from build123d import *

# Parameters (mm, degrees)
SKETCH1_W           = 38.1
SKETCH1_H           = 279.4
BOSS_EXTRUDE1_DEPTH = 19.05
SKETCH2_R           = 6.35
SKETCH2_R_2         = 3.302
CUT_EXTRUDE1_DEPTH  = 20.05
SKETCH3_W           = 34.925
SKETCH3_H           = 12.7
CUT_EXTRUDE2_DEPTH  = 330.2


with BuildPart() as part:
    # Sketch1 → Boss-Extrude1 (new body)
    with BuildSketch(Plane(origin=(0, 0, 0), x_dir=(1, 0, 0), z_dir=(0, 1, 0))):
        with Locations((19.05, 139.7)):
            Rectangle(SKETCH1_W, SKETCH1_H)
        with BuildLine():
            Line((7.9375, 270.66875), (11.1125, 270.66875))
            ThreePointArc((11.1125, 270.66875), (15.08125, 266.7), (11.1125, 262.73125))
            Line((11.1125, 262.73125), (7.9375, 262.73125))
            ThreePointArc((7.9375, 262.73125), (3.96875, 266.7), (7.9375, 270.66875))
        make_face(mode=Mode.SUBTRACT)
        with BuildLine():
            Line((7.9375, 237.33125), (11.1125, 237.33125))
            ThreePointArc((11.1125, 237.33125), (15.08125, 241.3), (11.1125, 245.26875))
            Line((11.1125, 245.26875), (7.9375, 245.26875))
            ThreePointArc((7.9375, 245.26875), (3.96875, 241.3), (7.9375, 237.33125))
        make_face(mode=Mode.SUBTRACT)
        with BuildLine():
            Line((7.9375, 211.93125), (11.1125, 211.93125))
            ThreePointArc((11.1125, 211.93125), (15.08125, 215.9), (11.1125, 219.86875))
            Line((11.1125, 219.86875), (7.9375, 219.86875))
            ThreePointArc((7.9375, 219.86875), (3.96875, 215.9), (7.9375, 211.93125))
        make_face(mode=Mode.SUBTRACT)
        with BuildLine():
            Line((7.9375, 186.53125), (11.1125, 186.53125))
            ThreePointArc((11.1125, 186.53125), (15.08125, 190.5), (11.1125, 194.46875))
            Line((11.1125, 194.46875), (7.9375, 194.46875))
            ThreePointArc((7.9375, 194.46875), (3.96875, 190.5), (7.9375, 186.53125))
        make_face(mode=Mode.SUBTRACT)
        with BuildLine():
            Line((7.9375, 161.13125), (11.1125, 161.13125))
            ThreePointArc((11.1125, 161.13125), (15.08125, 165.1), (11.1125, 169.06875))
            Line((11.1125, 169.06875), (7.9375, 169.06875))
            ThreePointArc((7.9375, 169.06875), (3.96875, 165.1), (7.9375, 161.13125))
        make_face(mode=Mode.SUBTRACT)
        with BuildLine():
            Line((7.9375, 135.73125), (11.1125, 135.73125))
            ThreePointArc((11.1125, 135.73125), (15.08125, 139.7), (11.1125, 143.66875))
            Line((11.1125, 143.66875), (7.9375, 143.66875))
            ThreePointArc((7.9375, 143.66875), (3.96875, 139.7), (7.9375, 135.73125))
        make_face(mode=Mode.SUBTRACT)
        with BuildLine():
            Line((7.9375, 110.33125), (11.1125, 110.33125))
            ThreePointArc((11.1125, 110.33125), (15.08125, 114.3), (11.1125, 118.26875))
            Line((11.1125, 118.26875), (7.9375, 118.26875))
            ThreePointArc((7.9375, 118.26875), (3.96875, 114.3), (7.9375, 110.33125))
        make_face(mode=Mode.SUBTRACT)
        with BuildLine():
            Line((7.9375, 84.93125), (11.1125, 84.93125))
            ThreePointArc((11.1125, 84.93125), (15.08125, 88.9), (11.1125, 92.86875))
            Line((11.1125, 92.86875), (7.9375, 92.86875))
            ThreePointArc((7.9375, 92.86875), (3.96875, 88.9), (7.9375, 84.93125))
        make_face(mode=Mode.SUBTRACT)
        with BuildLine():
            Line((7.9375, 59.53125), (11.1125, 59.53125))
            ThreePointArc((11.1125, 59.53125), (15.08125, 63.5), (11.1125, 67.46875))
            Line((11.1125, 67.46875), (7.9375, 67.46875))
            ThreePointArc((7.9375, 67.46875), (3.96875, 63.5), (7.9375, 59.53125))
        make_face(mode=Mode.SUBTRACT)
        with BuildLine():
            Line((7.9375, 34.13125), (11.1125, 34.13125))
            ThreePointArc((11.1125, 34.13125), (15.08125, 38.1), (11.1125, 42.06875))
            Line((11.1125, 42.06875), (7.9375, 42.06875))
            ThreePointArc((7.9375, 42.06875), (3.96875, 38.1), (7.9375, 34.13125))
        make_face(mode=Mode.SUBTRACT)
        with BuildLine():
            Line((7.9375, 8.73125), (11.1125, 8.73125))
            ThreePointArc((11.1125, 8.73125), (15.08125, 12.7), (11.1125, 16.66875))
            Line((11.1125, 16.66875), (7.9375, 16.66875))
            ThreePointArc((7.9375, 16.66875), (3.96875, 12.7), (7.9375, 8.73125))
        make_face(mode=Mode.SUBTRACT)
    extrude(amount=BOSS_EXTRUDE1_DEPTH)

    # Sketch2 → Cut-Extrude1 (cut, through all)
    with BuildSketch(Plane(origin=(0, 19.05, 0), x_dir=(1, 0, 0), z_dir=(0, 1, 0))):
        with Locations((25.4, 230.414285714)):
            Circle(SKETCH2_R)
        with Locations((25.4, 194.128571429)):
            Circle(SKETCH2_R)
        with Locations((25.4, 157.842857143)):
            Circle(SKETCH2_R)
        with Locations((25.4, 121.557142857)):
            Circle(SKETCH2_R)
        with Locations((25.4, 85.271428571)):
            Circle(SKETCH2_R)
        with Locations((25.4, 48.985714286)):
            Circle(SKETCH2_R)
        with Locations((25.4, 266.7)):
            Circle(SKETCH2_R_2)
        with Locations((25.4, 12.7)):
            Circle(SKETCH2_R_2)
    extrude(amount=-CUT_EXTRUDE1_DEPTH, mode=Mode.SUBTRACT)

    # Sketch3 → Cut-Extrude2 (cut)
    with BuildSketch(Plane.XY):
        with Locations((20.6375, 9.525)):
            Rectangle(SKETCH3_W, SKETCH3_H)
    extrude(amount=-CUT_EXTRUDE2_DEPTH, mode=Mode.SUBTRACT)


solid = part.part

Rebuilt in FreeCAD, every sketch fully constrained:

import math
import FreeCAD as App
import Part
import Sketcher
Q = App.Units.Quantity

doc = App.newDocument("Part")
body = doc.addObject("PartDesign::Body", "Body")

sketch1 = body.newObject("Sketcher::SketchObject", "Sketch")
sketch1.AttachmentSupport = (doc.getObject("XZ_Plane"), [""])
sketch1.MapMode = "FlatFace"
sketch1.addGeometry(Part.LineSegment(App.Vector(0, -279.4, 0), App.Vector(0, 0, 0)), False)
sketch1.addGeometry(Part.LineSegment(App.Vector(0, 0, 0), App.Vector(38.1, 0, 0)), False)
sketch1.addGeometry(Part.LineSegment(App.Vector(38.1, 0, 0), App.Vector(38.1, -279.4, 0)), False)
sketch1.addGeometry(Part.LineSegment(App.Vector(38.1, -279.4, 0), App.Vector(0, -279.4, 0)), False)
sketch1.addGeometry(Part.LineSegment(App.Vector(11.1125, -34.13125, 0), App.Vector(7.9375, -34.13125, 0)), False)
sketch1.addGeometry(Part.ArcOfCircle(Part.Circle(App.Vector(7.9375, -38.1, 0), App.Vector(0, 0, 1), 3.96875), math.radians(90), math.radians(270)), False)
sketch1.addGeometry(Part.LineSegment(App.Vector(7.9375, -42.06875, 0), App.Vector(11.1125, -42.06875, 0)), False)
sketch1.addGeometry(Part.ArcOfCircle(Part.Circle(App.Vector(11.1125, -38.1, 0), App.Vector(0, 0, 1), 3.96875), math.radians(-90), math.radians(90)), False)
sketch1.addGeometry(Part.LineSegment(App.Vector(11.1125, -59.53125, 0), App.Vector(7.9375, -59.53125, 0)), False)
sketch1.addGeometry(Part.ArcOfCircle(Part.Circle(App.Vector(7.9375, -63.5, 0), App.Vector(0, 0, 1), 3.96875), math.radians(90), math.radians(270)), False)
sketch1.addGeometry(Part.LineSegment(App.Vector(7.9375, -67.46875, 0), App.Vector(11.1125, -67.46875, 0)), False)
sketch1.addGeometry(Part.ArcOfCircle(Part.Circle(App.Vector(11.1125, -63.5, 0), App.Vector(0, 0, 1), 3.96875), math.radians(-90), math.radians(90)), False)
sketch1.addGeometry(Part.LineSegment(App.Vector(11.1125, -84.93125, 0), App.Vector(7.9375, -84.93125, 0)), False)
sketch1.addGeometry(Part.ArcOfCircle(Part.Circle(App.Vector(7.9375, -88.9, 0), App.Vector(0, 0, 1), 3.96875), math.radians(90), math.radians(270)), False)
sketch1.addGeometry(Part.LineSegment(App.Vector(7.9375, -92.86875, 0), App.Vector(11.1125, -92.86875, 0)), False)
sketch1.addGeometry(Part.ArcOfCircle(Part.Circle(App.Vector(11.1125, -88.9, 0), App.Vector(0, 0, 1), 3.96875), math.radians(-90), math.radians(90)), False)
sketch1.addGeometry(Part.LineSegment(App.Vector(11.1125, -110.33125, 0), App.Vector(7.9375, -110.33125, 0)), False)
sketch1.addGeometry(Part.ArcOfCircle(Part.Circle(App.Vector(7.9375, -114.3, 0), App.Vector(0, 0, 1), 3.96875), math.radians(90), math.radians(270)), False)
sketch1.addGeometry(Part.LineSegment(App.Vector(7.9375, -118.26875, 0), App.Vector(11.1125, -118.26875, 0)), False)
sketch1.addGeometry(Part.ArcOfCircle(Part.Circle(App.Vector(11.1125, -114.3, 0), App.Vector(0, 0, 1), 3.96875), math.radians(-90), math.radians(90)), False)
sketch1.addGeometry(Part.LineSegment(App.Vector(11.1125, -8.73125, 0), App.Vector(7.9375, -8.73125, 0)), False)
sketch1.addGeometry(Part.ArcOfCircle(Part.Circle(App.Vector(7.9375, -12.7, 0), App.Vector(0, 0, 1), 3.96875), math.radians(90), math.radians(270)), False)
sketch1.addGeometry(Part.LineSegment(App.Vector(7.9375, -16.66875, 0), App.Vector(11.1125, -16.66875, 0)), False)
sketch1.addGeometry(Part.ArcOfCircle(Part.Circle(App.Vector(11.1125, -12.7, 0), App.Vector(0, 0, 1), 3.96875), math.radians(-90), math.radians(90)), False)
sketch1.addGeometry(Part.LineSegment(App.Vector(11.1125, -135.73125, 0), App.Vector(7.9375, -135.73125, 0)), False)
sketch1.addGeometry(Part.ArcOfCircle(Part.Circle(App.Vector(7.9375, -139.7, 0), App.Vector(0, 0, 1), 3.96875), math.radians(90), math.radians(270)), False)
sketch1.addGeometry(Part.LineSegment(App.Vector(7.9375, -143.66875, 0), App.Vector(11.1125, -143.66875, 0)), False)
sketch1.addGeometry(Part.ArcOfCircle(Part.Circle(App.Vector(11.1125, -139.7, 0), App.Vector(0, 0, 1), 3.96875), math.radians(-90), math.radians(90)), False)
sketch1.addGeometry(Part.LineSegment(App.Vector(11.1125, -161.13125, 0), App.Vector(7.9375, -161.13125, 0)), False)
sketch1.addGeometry(Part.ArcOfCircle(Part.Circle(App.Vector(7.9375, -165.1, 0), App.Vector(0, 0, 1), 3.96875), math.radians(90), math.radians(270)), False)
sketch1.addGeometry(Part.LineSegment(App.Vector(7.9375, -169.06875, 0), App.Vector(11.1125, -169.06875, 0)), False)
sketch1.addGeometry(Part.ArcOfCircle(Part.Circle(App.Vector(11.1125, -165.1, 0), App.Vector(0, 0, 1), 3.96875), math.radians(-90), math.radians(90)), False)
sketch1.addGeometry(Part.LineSegment(App.Vector(11.1125, -186.53125, 0), App.Vector(7.9375, -186.53125, 0)), False)
sketch1.addGeometry(Part.ArcOfCircle(Part.Circle(App.Vector(7.9375, -190.5, 0), App.Vector(0, 0, 1), 3.96875), math.radians(90), math.radians(270)), False)
sketch1.addGeometry(Part.LineSegment(App.Vector(7.9375, -194.46875, 0), App.Vector(11.1125, -194.46875, 0)), False)
sketch1.addGeometry(Part.ArcOfCircle(Part.Circle(App.Vector(11.1125, -190.5, 0), App.Vector(0, 0, 1), 3.96875), math.radians(-90), math.radians(90)), False)
sketch1.addGeometry(Part.LineSegment(App.Vector(11.1125, -211.93125, 0), App.Vector(7.9375, -211.93125, 0)), False)
sketch1.addGeometry(Part.ArcOfCircle(Part.Circle(App.Vector(7.9375, -215.9, 0), App.Vector(0, 0, 1), 3.96875), math.radians(90), math.radians(270)), False)
sketch1.addGeometry(Part.LineSegment(App.Vector(7.9375, -219.86875, 0), App.Vector(11.1125, -219.86875, 0)), False)
sketch1.addGeometry(Part.ArcOfCircle(Part.Circle(App.Vector(11.1125, -215.9, 0), App.Vector(0, 0, 1), 3.96875), math.radians(-90), math.radians(90)), False)
sketch1.addGeometry(Part.LineSegment(App.Vector(11.1125, -237.33125, 0), App.Vector(7.9375, -237.33125, 0)), False)
sketch1.addGeometry(Part.ArcOfCircle(Part.Circle(App.Vector(7.9375, -241.3, 0), App.Vector(0, 0, 1), 3.96875), math.radians(90), math.radians(270)), False)
sketch1.addGeometry(Part.LineSegment(App.Vector(7.9375, -245.26875, 0), App.Vector(11.1125, -245.26875, 0)), False)
sketch1.addGeometry(Part.ArcOfCircle(Part.Circle(App.Vector(11.1125, -241.3, 0), App.Vector(0, 0, 1), 3.96875), math.radians(-90), math.radians(90)), False)
sketch1.addGeometry(Part.ArcOfCircle(Part.Circle(App.Vector(7.9375, -266.7, 0), App.Vector(0, 0, 1), 3.96875), math.radians(90), math.radians(270)), False)
sketch1.addGeometry(Part.LineSegment(App.Vector(7.9375, -270.66875, 0), App.Vector(11.1125, -270.66875, 0)), False)
sketch1.addGeometry(Part.ArcOfCircle(Part.Circle(App.Vector(11.1125, -266.7, 0), App.Vector(0, 0, 1), 3.96875), math.radians(-90), math.radians(90)), False)
sketch1.addGeometry(Part.LineSegment(App.Vector(11.1125, -262.73125, 0), App.Vector(7.9375, -262.73125, 0)), False)
sketch1.addConstraint(Sketcher.Constraint("Coincident", 0, 2, 1, 1))
sketch1.addConstraint(Sketcher.Constraint("Coincident", 1, 2, 2, 1))
sketch1.addConstraint(Sketcher.Constraint("Coincident", 2, 2, 3, 1))
sketch1.addConstraint(Sketcher.Constraint("Coincident", 3, 2, 0, 1))
sketch1.addConstraint(Sketcher.Constraint("Tangent", 4, 2, 5, 1))
sketch1.addConstraint(Sketcher.Constraint("Tangent", 5, 2, 6, 1))
sketch1.addConstraint(Sketcher.Constraint("Tangent", 6, 2, 7, 1))
sketch1.addConstraint(Sketcher.Constraint("Tangent", 7, 2, 4, 1))
sketch1.addConstraint(Sketcher.Constraint("Tangent", 8, 2, 9, 1))
sketch1.addConstraint(Sketcher.Constraint("Tangent", 9, 2, 10, 1))
sketch1.addConstraint(Sketcher.Constraint("Tangent", 10, 2, 11, 1))
sketch1.addConstraint(Sketcher.Constraint("Tangent", 11, 2, 8, 1))
sketch1.addConstraint(Sketcher.Constraint("Tangent", 12, 2, 13, 1))
sketch1.addConstraint(Sketcher.Constraint("Tangent", 13, 2, 14, 1))
sketch1.addConstraint(Sketcher.Constraint("Tangent", 14, 2, 15, 1))
sketch1.addConstraint(Sketcher.Constraint("Tangent", 15, 2, 12, 1))
sketch1.addConstraint(Sketcher.Constraint("Tangent", 16, 2, 17, 1))
sketch1.addConstraint(Sketcher.Constraint("Tangent", 17, 2, 18, 1))
sketch1.addConstraint(Sketcher.Constraint("Tangent", 18, 2, 19, 1))
sketch1.addConstraint(Sketcher.Constraint("Tangent", 19, 2, 16, 1))
sketch1.addConstraint(Sketcher.Constraint("Tangent", 20, 2, 21, 1))
sketch1.addConstraint(Sketcher.Constraint("Tangent", 21, 2, 22, 1))
sketch1.addConstraint(Sketcher.Constraint("Tangent", 22, 2, 23, 1))
sketch1.addConstraint(Sketcher.Constraint("Tangent", 23, 2, 20, 1))
sketch1.addConstraint(Sketcher.Constraint("Tangent", 24, 2, 25, 1))
sketch1.addConstraint(Sketcher.Constraint("Tangent", 25, 2, 26, 1))
sketch1.addConstraint(Sketcher.Constraint("Tangent", 26, 2, 27, 1))
sketch1.addConstraint(Sketcher.Constraint("Tangent", 27, 2, 24, 1))
sketch1.addConstraint(Sketcher.Constraint("Tangent", 28, 2, 29, 1))
sketch1.addConstraint(Sketcher.Constraint("Tangent", 29, 2, 30, 1))
sketch1.addConstraint(Sketcher.Constraint("Tangent", 30, 2, 31, 1))
sketch1.addConstraint(Sketcher.Constraint("Tangent", 31, 2, 28, 1))
sketch1.addConstraint(Sketcher.Constraint("Tangent", 32, 2, 33, 1))
sketch1.addConstraint(Sketcher.Constraint("Tangent", 33, 2, 34, 1))
sketch1.addConstraint(Sketcher.Constraint("Tangent", 34, 2, 35, 1))
sketch1.addConstraint(Sketcher.Constraint("Tangent", 35, 2, 32, 1))
sketch1.addConstraint(Sketcher.Constraint("Tangent", 36, 2, 37, 1))
sketch1.addConstraint(Sketcher.Constraint("Tangent", 37, 2, 38, 1))
sketch1.addConstraint(Sketcher.Constraint("Tangent", 38, 2, 39, 1))
sketch1.addConstraint(Sketcher.Constraint("Tangent", 39, 2, 36, 1))
sketch1.addConstraint(Sketcher.Constraint("Tangent", 40, 2, 41, 1))
sketch1.addConstraint(Sketcher.Constraint("Tangent", 41, 2, 42, 1))
sketch1.addConstraint(Sketcher.Constraint("Tangent", 42, 2, 43, 1))
sketch1.addConstraint(Sketcher.Constraint("Tangent", 43, 2, 40, 1))
sketch1.addConstraint(Sketcher.Constraint("Tangent", 44, 2, 45, 1))
sketch1.addConstraint(Sketcher.Constraint("Tangent", 45, 2, 46, 1))
sketch1.addConstraint(Sketcher.Constraint("Tangent", 46, 2, 47, 1))
sketch1.addConstraint(Sketcher.Constraint("Tangent", 47, 2, 44, 1))
sketch1.addConstraint(Sketcher.Constraint("Vertical", 0))
sketch1.addConstraint(Sketcher.Constraint("Horizontal", 1))
sketch1.addConstraint(Sketcher.Constraint("Vertical", 2))
sketch1.addConstraint(Sketcher.Constraint("Horizontal", 3))
sketch1.addConstraint(Sketcher.Constraint("Horizontal", 4))
sketch1.addConstraint(Sketcher.Constraint("Horizontal", 6))
sketch1.addConstraint(Sketcher.Constraint("Horizontal", 8))
sketch1.addConstraint(Sketcher.Constraint("Horizontal", 10))
sketch1.addConstraint(Sketcher.Constraint("Horizontal", 12))
sketch1.addConstraint(Sketcher.Constraint("Horizontal", 14))
sketch1.addConstraint(Sketcher.Constraint("Horizontal", 16))
sketch1.addConstraint(Sketcher.Constraint("Horizontal", 18))
sketch1.addConstraint(Sketcher.Constraint("Horizontal", 20))
sketch1.addConstraint(Sketcher.Constraint("Horizontal", 22))
sketch1.addConstraint(Sketcher.Constraint("Horizontal", 24))
sketch1.addConstraint(Sketcher.Constraint("Horizontal", 26))
sketch1.addConstraint(Sketcher.Constraint("Horizontal", 28))
sketch1.addConstraint(Sketcher.Constraint("Horizontal", 30))
sketch1.addConstraint(Sketcher.Constraint("Horizontal", 32))
sketch1.addConstraint(Sketcher.Constraint("Horizontal", 34))
sketch1.addConstraint(Sketcher.Constraint("Horizontal", 36))
sketch1.addConstraint(Sketcher.Constraint("Horizontal", 38))
sketch1.addConstraint(Sketcher.Constraint("Horizontal", 40))
sketch1.addConstraint(Sketcher.Constraint("Horizontal", 42))
sketch1.addConstraint(Sketcher.Constraint("Horizontal", 45))
sketch1.addConstraint(Sketcher.Constraint("Horizontal", 47))
sketch1.addConstraint(Sketcher.Constraint("Coincident", 0, 2, -1, 1))
sketch1.addConstraint(Sketcher.Constraint("Equal", 7, 9))
sketch1.addConstraint(Sketcher.Constraint("Equal", 11, 13))
sketch1.addConstraint(Sketcher.Constraint("Equal", 15, 17))
sketch1.addConstraint(Sketcher.Constraint("Equal", 19, 21))
sketch1.addConstraint(Sketcher.Constraint("Equal", 23, 25))
sketch1.addConstraint(Sketcher.Constraint("Equal", 27, 29))
sketch1.addConstraint(Sketcher.Constraint("Equal", 31, 33))
sketch1.addConstraint(Sketcher.Constraint("Equal", 35, 37))
sketch1.addConstraint(Sketcher.Constraint("Equal", 39, 41))
sketch1.addConstraint(Sketcher.Constraint("Equal", 43, 44))
sketch1.addConstraint(Sketcher.Constraint("Vertical", 5, 3, 9, 3))
sketch1.addConstraint(Sketcher.Constraint("Vertical", 7, 3, 11, 3))
sketch1.addConstraint(Sketcher.Constraint("Vertical", 9, 3, 13, 3))
sketch1.addConstraint(Sketcher.Constraint("Vertical", 11, 3, 15, 3))
sketch1.addConstraint(Sketcher.Constraint("Vertical", 13, 3, 17, 3))
sketch1.addConstraint(Sketcher.Constraint("Vertical", 15, 3, 19, 3))
sketch1.addConstraint(Sketcher.Constraint("Vertical", 17, 3, 21, 3))
sketch1.addConstraint(Sketcher.Constraint("Vertical", 19, 3, 23, 3))
sketch1.addConstraint(Sketcher.Constraint("Vertical", 21, 3, 25, 3))
sketch1.addConstraint(Sketcher.Constraint("Vertical", 23, 3, 27, 3))
sketch1.addConstraint(Sketcher.Constraint("Vertical", 25, 3, 29, 3))
sketch1.addConstraint(Sketcher.Constraint("Vertical", 27, 3, 31, 3))
sketch1.addConstraint(Sketcher.Constraint("Vertical", 29, 3, 33, 3))
sketch1.addConstraint(Sketcher.Constraint("Vertical", 31, 3, 35, 3))
sketch1.addConstraint(Sketcher.Constraint("Vertical", 33, 3, 37, 3))
sketch1.addConstraint(Sketcher.Constraint("Vertical", 35, 3, 39, 3))
sketch1.addConstraint(Sketcher.Constraint("Vertical", 37, 3, 41, 3))
sketch1.addConstraint(Sketcher.Constraint("Vertical", 39, 3, 43, 3))
sketch1.addConstraint(Sketcher.Constraint("Vertical", 41, 3, 44, 3))
sketch1.addConstraint(Sketcher.Constraint("Vertical", 43, 3, 46, 3))
sketch1.addConstraint(Sketcher.Constraint("DistanceY", 0, 1, 0, 2, Q("11 in")))
sketch1.addConstraint(Sketcher.Constraint("DistanceX", 1, 1, 1, 2, Q("1.5 in")))
sketch1.addConstraint(Sketcher.Constraint("Radius", 5, Q("0.15625 in")))
sketch1.addConstraint(Sketcher.Constraint("DistanceY", 5, 3, -1, 1, Q("1.5 in")))
sketch1.addConstraint(Sketcher.Constraint("DistanceY", 9, 3, -1, 1, Q("2.5 in")))
sketch1.addConstraint(Sketcher.Constraint("DistanceY", 13, 3, -1, 1, Q("3.5 in")))
sketch1.addConstraint(Sketcher.Constraint("DistanceY", 17, 3, -1, 1, Q("4.5 in")))
sketch1.addConstraint(Sketcher.Constraint("DistanceY", 21, 3, -1, 1, Q("0.5 in")))
sketch1.addConstraint(Sketcher.Constraint("DistanceY", 25, 3, -1, 1, Q("5.5 in")))
sketch1.addConstraint(Sketcher.Constraint("DistanceY", 29, 3, -1, 1, Q("6.5 in")))
sketch1.addConstraint(Sketcher.Constraint("DistanceY", 33, 3, -1, 1, Q("7.5 in")))
sketch1.addConstraint(Sketcher.Constraint("DistanceY", 37, 3, -1, 1, Q("8.5 in")))
sketch1.addConstraint(Sketcher.Constraint("DistanceY", 41, 3, -1, 1, Q("9.5 in")))
sketch1.addConstraint(Sketcher.Constraint("DistanceY", 44, 3, -1, 1, Q("10.5 in")))
sketch1.addConstraint(Sketcher.Constraint("DistanceX", 4, 2, 4, 1, Q("0.125 in")))
sketch1.addConstraint(Sketcher.Constraint("DistanceX", -1, 1, 5, 3, Q("0.3125 in")))
pad1 = body.newObject("PartDesign::Pad", "Pad")
pad1.Profile = sketch1
pad1.Length = Q("0.75 in")
pad1.Reversed = True

sketch2 = body.newObject("Sketcher::SketchObject", "Sketch001")
sketch2.AttachmentSupport = (doc.getObject("XZ_Plane"), [""])
sketch2.MapMode = "FlatFace"
sketch2.AttachmentOffset = App.Placement(App.Vector(0, 0, -0.75 * 25.4), App.Rotation())
sketch2.addGeometry(Part.Circle(App.Vector(25.4, -230.414286, 0), App.Vector(0, 0, 1), 6.35), False)
sketch2.addGeometry(Part.Circle(App.Vector(25.4, -194.128571, 0), App.Vector(0, 0, 1), 6.35), False)
sketch2.addGeometry(Part.Circle(App.Vector(25.4, -157.842857, 0), App.Vector(0, 0, 1), 6.35), False)
sketch2.addGeometry(Part.Circle(App.Vector(25.4, -121.557143, 0), App.Vector(0, 0, 1), 6.35), False)
sketch2.addGeometry(Part.Circle(App.Vector(25.4, -85.271429, 0), App.Vector(0, 0, 1), 6.35), False)
sketch2.addGeometry(Part.Circle(App.Vector(25.4, -48.985714, 0), App.Vector(0, 0, 1), 6.35), False)
sketch2.addGeometry(Part.Circle(App.Vector(25.4, -266.7, 0), App.Vector(0, 0, 1), 3.302), False)
sketch2.addGeometry(Part.Circle(App.Vector(25.4, -12.7, 0), App.Vector(0, 0, 1), 3.302), False)
sketch2.addConstraint(Sketcher.Constraint("Equal", 0, 1))
sketch2.addConstraint(Sketcher.Constraint("Equal", 1, 2))
sketch2.addConstraint(Sketcher.Constraint("Equal", 2, 3))
sketch2.addConstraint(Sketcher.Constraint("Equal", 3, 4))
sketch2.addConstraint(Sketcher.Constraint("Equal", 4, 5))
sketch2.addConstraint(Sketcher.Constraint("Equal", 6, 7))
sketch2.addConstraint(Sketcher.Constraint("Vertical", 0, 3, 1, 3))
sketch2.addConstraint(Sketcher.Constraint("Vertical", 1, 3, 2, 3))
sketch2.addConstraint(Sketcher.Constraint("Vertical", 2, 3, 3, 3))
sketch2.addConstraint(Sketcher.Constraint("Vertical", 3, 3, 4, 3))
sketch2.addConstraint(Sketcher.Constraint("Vertical", 4, 3, 5, 3))
sketch2.addConstraint(Sketcher.Constraint("Vertical", 5, 3, 6, 3))
sketch2.addConstraint(Sketcher.Constraint("Vertical", 6, 3, 7, 3))
sketch2.addConstraint(Sketcher.Constraint("Diameter", 0, Q("0.5 in")))
sketch2.addConstraint(Sketcher.Constraint("Diameter", 6, Q("0.26 in")))
sketch2.addConstraint(Sketcher.Constraint("DistanceX", -1, 1, 0, 3, Q("1 in")))
sketch2.addConstraint(Sketcher.Constraint("DistanceY", 6, 3, -1, 1, Q("10.5 in")))
sketch2.addConstraint(Sketcher.Constraint("DistanceY", 7, 3, -1, 1, Q("0.5 in")))
sketch2.addConstraint(Sketcher.Constraint("DistanceY", 1, 3, -1, 1, 194.128571))
sketch2.addConstraint(Sketcher.Constraint("DistanceY", 4, 3, -1, 1, 85.271429))
sketch2.addConstraint(Sketcher.Constraint("DistanceY", 0, 3, 2, 3, 72.571429))
sketch2.addConstraint(Sketcher.Constraint("DistanceY", 1, 3, 3, 3, 72.571429))
sketch2.addConstraint(Sketcher.Constraint("DistanceY", 2, 3, 4, 3, 72.571429))
sketch2.addConstraint(Sketcher.Constraint("DistanceY", 3, 3, 5, 3, 72.571429))
pocket1 = body.newObject("PartDesign::Pocket", "Pocket")
pocket1.Profile = sketch2
pocket1.Type = "ThroughAll"
pocket1.Reversed = True

sketch3 = body.newObject("Sketcher::SketchObject", "Sketch002")
sketch3.AttachmentSupport = (doc.getObject("XY_Plane"), [""])
sketch3.MapMode = "FlatFace"
sketch3.addGeometry(Part.LineSegment(App.Vector(3.175, 15.875, 0), App.Vector(3.175, 3.175, 0)), False)
sketch3.addGeometry(Part.LineSegment(App.Vector(3.175, 3.175, 0), App.Vector(38.1, 3.175, 0)), False)
sketch3.addGeometry(Part.LineSegment(App.Vector(38.1, 3.175, 0), App.Vector(38.1, 15.875, 0)), False)
sketch3.addGeometry(Part.LineSegment(App.Vector(38.1, 15.875, 0), App.Vector(3.175, 15.875, 0)), False)
sketch3.addConstraint(Sketcher.Constraint("Coincident", 0, 2, 1, 1))
sketch3.addConstraint(Sketcher.Constraint("Coincident", 1, 2, 2, 1))
sketch3.addConstraint(Sketcher.Constraint("Coincident", 2, 2, 3, 1))
sketch3.addConstraint(Sketcher.Constraint("Coincident", 3, 2, 0, 1))
sketch3.addConstraint(Sketcher.Constraint("Vertical", 0))
sketch3.addConstraint(Sketcher.Constraint("Horizontal", 1))
sketch3.addConstraint(Sketcher.Constraint("Vertical", 2))
sketch3.addConstraint(Sketcher.Constraint("Horizontal", 3))
sketch3.addConstraint(Sketcher.Constraint("DistanceY", 0, 2, 0, 1, Q("0.5 in")))
sketch3.addConstraint(Sketcher.Constraint("DistanceX", -1, 1, 1, 2, Q("1.5 in")))
sketch3.addConstraint(Sketcher.Constraint("DistanceX", 1, 1, 1, 2, Q("1.375 in")))
sketch3.addConstraint(Sketcher.Constraint("DistanceY", -1, 1, 0, 2, Q("0.125 in")))
pocket2 = body.newObject("PartDesign::Pocket", "Pocket001")
pocket2.Profile = sketch3
pocket2.Length = Q("13 in")

doc.recompute()
